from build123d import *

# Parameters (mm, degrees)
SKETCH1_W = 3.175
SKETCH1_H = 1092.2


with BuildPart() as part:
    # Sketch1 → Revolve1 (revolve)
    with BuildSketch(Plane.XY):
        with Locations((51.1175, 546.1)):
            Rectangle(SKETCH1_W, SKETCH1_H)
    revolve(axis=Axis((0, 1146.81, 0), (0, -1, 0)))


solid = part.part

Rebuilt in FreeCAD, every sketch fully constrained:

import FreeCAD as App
import Part
import Sketcher
Q = App.Units.Quantity


def add_polygon(sketch, points):
    """Adds a closed chain of lines whose ends are joined by coincident constraints."""
    first, n = sketch.GeometryCount, len(points)
    for a, b in zip(points, points[1:] + points[:1]):
        sketch.addGeometry(Part.LineSegment(App.Vector(*a, 0), App.Vector(*b, 0)), False)
    for i in range(n):
        sketch.addConstraint(Sketcher.Constraint("Coincident", first + i, 2, first + (i + 1) % n, 1))

doc = App.newDocument("Part")
body = doc.addObject("PartDesign::Body", "Body")

# Sketch on XY plane
sketch1 = body.newObject("Sketcher::SketchObject", "Sketch")
sketch1.AttachmentSupport = (doc.getObject("XY_Plane"), [""])
sketch1.MapMode = "FlatFace"
add_polygon(sketch1, [(49.5, 1092.2), (49.5, 0), (52.7, 0), (52.7, 1092.2)])  # lines 0-3
sketch1.addConstraint([
    Sketcher.Constraint("Vertical", 0),
    Sketcher.Constraint("Horizontal", 1),
    Sketcher.Constraint("Vertical", 2),
    Sketcher.Constraint("Horizontal", 3),
    Sketcher.Constraint("PointOnObject", 0, 2, -1),
    Sketcher.Constraint("DistanceY", 0, 2, 0, 1, Q("43 in")),
    Sketcher.Constraint("DistanceX", 1, 1, 1, 2, Q("0.125 in")),
    Sketcher.Constraint("DistanceX", -1, 1, 0, 2, Q("1.95 in")),
])
revolution = body.newObject("PartDesign::Revolution", "Revolution")
revolution.Profile = sketch1
revolution.ReferenceAxis = (sketch1, ["V_Axis"])
revolution.Angle = 360

doc.recompute()
